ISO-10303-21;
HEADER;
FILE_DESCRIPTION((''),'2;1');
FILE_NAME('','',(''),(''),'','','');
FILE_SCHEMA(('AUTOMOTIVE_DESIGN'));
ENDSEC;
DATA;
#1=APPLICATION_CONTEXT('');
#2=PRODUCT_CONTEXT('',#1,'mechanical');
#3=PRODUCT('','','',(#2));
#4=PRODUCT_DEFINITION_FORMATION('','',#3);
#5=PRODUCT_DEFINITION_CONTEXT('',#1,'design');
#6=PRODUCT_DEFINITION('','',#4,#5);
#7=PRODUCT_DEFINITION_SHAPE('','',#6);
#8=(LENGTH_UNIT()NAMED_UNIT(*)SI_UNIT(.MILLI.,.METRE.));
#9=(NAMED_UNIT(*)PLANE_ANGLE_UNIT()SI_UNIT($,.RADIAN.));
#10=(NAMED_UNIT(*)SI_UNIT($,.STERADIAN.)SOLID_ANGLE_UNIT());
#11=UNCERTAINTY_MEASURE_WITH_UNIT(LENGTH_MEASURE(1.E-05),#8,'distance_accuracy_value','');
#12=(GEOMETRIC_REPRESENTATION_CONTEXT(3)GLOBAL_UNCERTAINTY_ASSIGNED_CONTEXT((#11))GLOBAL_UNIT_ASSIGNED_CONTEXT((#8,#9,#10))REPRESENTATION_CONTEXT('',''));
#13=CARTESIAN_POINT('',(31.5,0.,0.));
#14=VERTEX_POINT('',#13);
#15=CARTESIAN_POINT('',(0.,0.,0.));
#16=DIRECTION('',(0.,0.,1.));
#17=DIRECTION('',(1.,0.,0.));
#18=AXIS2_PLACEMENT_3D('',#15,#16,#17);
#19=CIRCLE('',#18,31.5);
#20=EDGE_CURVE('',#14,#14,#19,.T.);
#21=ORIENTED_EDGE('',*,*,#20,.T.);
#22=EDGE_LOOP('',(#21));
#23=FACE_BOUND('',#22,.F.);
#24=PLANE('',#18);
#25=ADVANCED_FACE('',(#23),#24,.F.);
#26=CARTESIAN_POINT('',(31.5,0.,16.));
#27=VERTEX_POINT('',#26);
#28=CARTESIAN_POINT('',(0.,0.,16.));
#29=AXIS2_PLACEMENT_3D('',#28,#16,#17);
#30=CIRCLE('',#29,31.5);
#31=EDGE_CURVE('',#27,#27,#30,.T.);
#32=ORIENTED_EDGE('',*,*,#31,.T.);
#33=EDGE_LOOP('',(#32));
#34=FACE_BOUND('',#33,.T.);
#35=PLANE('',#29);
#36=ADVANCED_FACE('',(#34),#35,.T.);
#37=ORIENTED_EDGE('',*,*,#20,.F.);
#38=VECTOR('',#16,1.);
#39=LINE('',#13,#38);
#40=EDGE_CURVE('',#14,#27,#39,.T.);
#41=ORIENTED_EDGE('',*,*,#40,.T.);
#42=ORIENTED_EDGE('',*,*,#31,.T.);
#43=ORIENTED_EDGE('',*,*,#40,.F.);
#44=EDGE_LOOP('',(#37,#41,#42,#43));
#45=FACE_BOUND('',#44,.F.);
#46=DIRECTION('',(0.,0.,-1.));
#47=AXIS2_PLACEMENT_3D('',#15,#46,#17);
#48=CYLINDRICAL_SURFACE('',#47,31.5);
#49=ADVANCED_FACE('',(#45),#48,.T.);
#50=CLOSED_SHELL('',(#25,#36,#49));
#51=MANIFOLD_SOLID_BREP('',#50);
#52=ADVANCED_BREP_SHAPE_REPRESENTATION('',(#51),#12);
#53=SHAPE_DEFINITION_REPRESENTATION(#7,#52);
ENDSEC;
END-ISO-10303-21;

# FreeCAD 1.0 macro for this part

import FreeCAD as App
import Part
import Sketcher

V = App.Vector

doc = App.newDocument("Part")
body = doc.addObject("PartDesign::Body", "Body")

# Sketch on XY plane
sketch1 = doc.addObject("Sketcher::SketchObject", "Sketch")
body.addObject(sketch1)
sketch1.AttachmentSupport = (doc.XY_Plane, [""])
sketch1.MapMode = "FlatFace"
sketch1.addGeometry(Part.Circle(V(0, 0, 0), V(0, 0, 1), 32), False)
sketch1.addConstraint(Sketcher.Constraint("Coincident", 0, 3, -1, 1))
sketch1.addConstraint(Sketcher.Constraint("Diameter", 0, 63.0))
pad1 = doc.addObject("PartDesign::Pad", "Pad")
body.addObject(pad1)
pad1.Profile = sketch1
pad1.Length = 16

doc.recompute()
